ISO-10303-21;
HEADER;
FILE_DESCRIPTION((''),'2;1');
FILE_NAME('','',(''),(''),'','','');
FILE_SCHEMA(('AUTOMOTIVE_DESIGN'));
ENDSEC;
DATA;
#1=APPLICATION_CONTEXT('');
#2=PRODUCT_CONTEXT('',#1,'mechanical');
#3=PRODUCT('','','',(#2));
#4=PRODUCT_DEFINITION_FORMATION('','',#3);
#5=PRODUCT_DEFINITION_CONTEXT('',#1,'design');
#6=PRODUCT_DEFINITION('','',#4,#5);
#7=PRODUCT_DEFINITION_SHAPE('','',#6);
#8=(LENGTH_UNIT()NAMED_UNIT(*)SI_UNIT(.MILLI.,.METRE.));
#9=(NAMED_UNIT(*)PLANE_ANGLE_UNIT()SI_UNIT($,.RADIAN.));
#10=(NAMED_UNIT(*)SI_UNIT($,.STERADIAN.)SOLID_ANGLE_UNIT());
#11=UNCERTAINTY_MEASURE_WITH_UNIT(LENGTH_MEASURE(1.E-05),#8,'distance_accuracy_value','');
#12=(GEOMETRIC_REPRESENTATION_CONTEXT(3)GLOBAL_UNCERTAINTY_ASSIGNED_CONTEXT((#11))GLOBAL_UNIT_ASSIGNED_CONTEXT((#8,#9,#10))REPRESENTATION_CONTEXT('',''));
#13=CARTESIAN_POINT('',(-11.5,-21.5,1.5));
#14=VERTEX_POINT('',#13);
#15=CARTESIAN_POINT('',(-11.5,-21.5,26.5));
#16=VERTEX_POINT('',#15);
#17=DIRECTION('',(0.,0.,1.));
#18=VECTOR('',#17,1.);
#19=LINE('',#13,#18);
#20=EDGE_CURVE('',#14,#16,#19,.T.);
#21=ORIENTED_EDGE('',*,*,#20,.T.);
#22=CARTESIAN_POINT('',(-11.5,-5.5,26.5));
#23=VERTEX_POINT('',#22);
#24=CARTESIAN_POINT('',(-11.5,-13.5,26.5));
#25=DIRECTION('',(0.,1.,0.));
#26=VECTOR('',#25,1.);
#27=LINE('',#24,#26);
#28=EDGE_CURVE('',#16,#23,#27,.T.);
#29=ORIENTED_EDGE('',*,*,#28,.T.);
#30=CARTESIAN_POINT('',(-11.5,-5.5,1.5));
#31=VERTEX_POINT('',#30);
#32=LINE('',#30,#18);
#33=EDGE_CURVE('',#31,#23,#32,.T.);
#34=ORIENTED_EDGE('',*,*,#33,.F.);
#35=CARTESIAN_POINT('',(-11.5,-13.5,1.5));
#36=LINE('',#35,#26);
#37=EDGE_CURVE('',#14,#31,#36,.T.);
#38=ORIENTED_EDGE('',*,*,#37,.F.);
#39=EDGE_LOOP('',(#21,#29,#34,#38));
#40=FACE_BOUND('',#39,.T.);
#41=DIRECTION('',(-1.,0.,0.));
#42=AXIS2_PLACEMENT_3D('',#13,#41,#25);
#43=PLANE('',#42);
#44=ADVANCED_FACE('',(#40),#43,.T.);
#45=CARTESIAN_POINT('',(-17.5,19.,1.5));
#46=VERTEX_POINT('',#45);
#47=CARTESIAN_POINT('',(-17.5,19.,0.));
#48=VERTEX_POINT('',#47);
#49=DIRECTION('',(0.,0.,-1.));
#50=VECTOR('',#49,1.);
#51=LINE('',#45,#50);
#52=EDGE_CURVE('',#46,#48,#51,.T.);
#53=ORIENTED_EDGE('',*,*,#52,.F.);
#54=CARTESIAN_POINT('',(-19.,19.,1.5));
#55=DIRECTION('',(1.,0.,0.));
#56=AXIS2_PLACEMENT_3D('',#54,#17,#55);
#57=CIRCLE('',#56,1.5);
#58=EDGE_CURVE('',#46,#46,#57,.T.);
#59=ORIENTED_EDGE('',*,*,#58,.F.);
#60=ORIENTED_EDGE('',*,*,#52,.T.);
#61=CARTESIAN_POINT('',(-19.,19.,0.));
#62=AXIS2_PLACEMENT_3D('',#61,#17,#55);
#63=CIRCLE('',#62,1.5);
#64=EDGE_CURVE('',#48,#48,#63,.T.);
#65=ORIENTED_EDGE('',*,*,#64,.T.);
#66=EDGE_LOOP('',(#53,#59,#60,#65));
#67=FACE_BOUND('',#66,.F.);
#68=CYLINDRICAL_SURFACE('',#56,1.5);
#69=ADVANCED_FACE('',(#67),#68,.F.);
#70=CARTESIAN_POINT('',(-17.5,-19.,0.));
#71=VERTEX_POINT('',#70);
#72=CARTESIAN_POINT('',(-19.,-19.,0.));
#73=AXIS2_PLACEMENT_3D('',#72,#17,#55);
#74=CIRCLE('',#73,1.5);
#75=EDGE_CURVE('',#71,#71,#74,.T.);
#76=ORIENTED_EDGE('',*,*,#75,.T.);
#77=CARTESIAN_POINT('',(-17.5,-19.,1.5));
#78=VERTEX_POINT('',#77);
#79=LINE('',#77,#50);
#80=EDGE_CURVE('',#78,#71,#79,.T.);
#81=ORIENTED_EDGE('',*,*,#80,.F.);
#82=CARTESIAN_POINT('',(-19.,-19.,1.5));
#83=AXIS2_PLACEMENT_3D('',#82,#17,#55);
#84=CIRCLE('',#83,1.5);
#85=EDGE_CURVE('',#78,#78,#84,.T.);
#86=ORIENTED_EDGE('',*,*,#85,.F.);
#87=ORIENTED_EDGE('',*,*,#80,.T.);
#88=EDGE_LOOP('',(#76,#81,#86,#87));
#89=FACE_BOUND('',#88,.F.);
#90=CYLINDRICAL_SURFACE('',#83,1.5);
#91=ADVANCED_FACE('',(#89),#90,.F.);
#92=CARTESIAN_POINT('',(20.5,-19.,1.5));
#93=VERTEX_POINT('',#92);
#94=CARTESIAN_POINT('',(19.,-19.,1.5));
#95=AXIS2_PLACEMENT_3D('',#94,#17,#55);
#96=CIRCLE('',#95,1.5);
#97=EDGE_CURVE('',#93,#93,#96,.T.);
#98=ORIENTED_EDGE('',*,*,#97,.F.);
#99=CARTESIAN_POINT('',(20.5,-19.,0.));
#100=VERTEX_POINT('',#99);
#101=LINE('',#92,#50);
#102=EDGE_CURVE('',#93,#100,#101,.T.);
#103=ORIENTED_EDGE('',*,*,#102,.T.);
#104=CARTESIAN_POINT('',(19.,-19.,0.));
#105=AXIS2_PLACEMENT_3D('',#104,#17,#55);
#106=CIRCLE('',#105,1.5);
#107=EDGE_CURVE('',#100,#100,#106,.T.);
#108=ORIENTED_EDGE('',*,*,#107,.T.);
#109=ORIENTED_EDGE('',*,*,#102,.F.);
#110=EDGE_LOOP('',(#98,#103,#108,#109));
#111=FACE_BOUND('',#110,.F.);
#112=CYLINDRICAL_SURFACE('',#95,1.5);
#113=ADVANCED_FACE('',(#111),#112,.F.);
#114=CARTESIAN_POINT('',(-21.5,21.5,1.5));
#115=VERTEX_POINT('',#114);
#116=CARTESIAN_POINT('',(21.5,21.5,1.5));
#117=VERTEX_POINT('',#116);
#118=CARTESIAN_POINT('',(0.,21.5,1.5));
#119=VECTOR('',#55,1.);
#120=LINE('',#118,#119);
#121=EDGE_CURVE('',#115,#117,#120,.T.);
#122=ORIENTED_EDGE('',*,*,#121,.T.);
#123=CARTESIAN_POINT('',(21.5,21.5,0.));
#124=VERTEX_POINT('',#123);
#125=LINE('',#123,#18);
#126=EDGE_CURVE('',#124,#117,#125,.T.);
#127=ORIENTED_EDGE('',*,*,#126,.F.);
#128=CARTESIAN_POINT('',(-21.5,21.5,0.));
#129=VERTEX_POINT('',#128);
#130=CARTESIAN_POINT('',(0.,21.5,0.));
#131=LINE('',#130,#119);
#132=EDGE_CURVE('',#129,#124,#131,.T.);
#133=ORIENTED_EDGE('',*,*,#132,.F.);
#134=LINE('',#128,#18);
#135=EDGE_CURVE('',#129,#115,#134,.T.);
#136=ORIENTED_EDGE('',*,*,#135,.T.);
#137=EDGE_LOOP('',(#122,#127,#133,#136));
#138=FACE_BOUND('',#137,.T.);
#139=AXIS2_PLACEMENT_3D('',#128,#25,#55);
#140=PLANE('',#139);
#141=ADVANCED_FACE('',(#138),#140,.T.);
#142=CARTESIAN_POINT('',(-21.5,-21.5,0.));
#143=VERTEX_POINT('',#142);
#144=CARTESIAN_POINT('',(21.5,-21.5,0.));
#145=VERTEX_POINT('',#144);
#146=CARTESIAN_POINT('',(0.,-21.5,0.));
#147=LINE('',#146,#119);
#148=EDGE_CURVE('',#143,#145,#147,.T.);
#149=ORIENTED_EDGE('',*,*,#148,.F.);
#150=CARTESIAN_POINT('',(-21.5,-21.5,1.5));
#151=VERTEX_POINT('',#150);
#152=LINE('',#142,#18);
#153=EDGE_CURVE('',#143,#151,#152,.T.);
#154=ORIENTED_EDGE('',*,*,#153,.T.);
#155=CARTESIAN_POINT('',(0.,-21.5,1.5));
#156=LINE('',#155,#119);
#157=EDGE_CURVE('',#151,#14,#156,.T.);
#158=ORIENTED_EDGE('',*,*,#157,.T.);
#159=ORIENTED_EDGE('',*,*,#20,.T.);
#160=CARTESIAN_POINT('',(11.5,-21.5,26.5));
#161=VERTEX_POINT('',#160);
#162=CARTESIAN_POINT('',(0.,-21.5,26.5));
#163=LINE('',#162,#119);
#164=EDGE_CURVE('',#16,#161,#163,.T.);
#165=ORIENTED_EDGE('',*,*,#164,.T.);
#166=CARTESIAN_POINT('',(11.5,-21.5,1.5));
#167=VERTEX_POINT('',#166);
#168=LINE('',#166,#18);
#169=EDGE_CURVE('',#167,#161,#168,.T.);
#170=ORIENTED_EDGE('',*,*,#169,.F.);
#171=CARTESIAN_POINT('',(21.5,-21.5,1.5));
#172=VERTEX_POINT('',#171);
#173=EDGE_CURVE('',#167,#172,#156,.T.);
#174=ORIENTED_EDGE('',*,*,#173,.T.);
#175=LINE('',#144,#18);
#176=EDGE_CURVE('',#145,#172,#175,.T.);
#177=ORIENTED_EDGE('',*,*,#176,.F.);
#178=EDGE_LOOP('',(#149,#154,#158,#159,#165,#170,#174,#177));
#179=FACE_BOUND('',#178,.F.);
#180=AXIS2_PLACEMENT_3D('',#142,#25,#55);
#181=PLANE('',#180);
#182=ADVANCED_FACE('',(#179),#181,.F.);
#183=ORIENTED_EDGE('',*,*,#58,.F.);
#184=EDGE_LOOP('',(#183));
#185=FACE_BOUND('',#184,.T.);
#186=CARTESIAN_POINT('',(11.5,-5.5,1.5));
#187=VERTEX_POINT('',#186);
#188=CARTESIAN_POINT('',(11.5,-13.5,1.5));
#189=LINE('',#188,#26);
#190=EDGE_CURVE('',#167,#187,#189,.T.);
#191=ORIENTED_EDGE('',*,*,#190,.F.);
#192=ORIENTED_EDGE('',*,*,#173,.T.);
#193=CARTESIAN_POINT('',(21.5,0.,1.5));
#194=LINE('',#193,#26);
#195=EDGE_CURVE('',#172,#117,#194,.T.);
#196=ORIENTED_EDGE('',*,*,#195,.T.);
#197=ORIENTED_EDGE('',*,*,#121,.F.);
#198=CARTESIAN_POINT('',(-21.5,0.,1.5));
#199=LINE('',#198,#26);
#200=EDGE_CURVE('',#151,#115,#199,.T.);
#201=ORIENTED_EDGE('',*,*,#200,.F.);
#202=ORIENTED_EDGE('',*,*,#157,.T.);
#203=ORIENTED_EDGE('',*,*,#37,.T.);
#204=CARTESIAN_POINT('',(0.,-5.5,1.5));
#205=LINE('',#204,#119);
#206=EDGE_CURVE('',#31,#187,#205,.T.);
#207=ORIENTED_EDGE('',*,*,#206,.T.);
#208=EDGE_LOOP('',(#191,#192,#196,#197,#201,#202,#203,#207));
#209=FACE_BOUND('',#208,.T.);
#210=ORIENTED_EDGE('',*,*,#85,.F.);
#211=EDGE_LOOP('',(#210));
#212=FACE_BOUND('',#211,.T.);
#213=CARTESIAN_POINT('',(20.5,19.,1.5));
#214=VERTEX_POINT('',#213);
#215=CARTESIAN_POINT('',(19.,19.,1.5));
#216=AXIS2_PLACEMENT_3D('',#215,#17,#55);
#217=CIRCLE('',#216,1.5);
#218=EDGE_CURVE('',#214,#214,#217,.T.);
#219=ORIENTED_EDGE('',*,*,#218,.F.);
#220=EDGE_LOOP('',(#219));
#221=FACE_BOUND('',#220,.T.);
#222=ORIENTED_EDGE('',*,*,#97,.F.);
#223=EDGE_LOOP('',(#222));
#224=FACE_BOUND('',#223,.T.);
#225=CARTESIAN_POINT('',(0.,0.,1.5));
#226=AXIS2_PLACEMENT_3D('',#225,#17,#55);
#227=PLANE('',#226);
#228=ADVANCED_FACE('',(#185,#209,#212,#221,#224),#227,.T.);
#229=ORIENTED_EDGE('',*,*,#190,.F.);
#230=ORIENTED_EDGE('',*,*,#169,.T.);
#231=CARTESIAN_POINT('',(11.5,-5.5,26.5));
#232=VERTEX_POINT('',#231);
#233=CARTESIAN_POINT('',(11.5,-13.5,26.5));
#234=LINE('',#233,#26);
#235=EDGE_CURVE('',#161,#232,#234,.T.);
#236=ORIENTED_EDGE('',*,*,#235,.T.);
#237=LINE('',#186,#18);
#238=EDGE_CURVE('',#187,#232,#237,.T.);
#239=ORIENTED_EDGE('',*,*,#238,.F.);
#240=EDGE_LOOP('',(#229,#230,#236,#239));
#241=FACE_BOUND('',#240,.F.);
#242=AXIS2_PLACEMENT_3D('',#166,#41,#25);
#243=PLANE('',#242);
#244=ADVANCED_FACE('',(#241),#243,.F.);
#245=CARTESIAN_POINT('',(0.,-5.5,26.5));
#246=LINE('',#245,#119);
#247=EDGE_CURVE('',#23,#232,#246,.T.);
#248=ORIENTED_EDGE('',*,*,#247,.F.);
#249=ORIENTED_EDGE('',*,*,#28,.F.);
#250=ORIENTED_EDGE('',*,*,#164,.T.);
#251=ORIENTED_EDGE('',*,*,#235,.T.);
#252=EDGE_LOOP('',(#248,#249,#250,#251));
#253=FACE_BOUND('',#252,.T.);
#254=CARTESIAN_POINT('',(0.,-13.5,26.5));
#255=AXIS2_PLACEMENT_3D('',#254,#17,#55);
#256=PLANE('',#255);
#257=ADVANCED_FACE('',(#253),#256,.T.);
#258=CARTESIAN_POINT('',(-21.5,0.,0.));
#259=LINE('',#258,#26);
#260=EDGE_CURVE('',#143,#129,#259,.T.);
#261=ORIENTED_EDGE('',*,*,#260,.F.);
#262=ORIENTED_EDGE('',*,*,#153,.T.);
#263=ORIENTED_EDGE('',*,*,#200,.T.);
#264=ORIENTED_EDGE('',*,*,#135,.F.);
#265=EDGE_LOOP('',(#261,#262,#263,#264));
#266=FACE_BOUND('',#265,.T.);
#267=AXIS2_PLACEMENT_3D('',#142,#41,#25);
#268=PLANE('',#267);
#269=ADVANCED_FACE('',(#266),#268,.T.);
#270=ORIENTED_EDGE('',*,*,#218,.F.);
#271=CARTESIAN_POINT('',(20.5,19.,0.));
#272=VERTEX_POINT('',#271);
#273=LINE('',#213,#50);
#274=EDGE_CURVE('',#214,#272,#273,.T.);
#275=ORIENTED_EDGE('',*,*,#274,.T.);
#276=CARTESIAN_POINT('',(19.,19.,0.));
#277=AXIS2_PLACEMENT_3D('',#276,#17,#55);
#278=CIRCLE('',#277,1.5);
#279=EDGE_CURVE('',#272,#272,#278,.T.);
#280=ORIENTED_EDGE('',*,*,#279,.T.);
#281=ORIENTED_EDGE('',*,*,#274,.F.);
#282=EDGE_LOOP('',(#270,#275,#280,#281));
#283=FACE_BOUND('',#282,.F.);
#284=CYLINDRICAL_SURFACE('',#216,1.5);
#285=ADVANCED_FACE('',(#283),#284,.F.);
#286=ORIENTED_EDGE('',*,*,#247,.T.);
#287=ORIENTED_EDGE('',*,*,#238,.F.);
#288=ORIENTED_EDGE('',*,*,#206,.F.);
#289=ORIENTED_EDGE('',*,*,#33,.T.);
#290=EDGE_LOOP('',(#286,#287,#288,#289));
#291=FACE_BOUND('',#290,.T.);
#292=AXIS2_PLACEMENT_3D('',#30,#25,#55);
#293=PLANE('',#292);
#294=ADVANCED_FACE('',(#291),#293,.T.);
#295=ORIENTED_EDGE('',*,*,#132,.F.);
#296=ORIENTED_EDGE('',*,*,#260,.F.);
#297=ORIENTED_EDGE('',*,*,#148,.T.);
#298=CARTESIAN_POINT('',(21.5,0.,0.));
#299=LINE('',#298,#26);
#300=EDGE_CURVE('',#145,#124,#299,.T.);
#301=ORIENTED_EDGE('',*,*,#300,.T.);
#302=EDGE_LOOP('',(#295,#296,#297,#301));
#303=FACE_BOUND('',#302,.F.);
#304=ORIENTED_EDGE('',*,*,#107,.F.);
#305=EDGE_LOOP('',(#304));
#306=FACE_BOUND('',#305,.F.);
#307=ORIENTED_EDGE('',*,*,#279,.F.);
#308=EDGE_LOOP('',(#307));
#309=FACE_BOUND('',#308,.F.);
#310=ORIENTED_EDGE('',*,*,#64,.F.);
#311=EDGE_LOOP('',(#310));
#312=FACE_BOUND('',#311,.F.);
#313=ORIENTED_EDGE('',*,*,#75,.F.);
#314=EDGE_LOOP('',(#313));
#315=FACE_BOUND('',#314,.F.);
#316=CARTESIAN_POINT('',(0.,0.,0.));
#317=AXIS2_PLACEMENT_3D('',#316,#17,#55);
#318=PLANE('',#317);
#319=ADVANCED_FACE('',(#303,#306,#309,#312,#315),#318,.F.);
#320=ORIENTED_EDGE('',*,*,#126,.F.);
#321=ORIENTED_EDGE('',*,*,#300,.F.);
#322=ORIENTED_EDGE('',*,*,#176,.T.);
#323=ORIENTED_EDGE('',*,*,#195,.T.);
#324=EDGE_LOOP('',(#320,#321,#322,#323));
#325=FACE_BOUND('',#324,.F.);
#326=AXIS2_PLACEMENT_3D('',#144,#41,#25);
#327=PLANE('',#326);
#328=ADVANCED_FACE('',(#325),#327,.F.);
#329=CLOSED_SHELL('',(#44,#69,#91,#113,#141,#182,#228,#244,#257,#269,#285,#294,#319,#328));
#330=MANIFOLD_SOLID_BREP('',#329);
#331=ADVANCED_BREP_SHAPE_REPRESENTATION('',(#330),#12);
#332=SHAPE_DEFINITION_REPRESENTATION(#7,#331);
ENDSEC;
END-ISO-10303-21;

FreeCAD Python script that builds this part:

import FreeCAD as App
import Part
import Sketcher

doc = App.newDocument("Part")
params = doc.addObject("Spreadsheet::Sheet", "Params")
for row, (alias, value) in enumerate([
    ("sketch1_width", "43 mm"),
    ("pad1_length", "1.5 mm"),
    ("sketch2_width", "23 mm"),
    ("sketch2_height", "16 mm"),
    ("pad2_length", "25 mm"),
    ("sketch3_diameter", "3 mm"),
], start=1):
    params.set(f"A{row}", alias)
    params.set(f"B{row}", "=" + value)
    params.setAlias(f"B{row}", alias)

body = doc.addObject("PartDesign::Body", "Body")

sketch1 = body.newObject("Sketcher::SketchObject", "Sketch")
sketch1.AttachmentSupport = (doc.getObject("XY_Plane"), [""])
sketch1.MapMode = "FlatFace"
sketch1.addGeometry([
    Part.LineSegment(App.Vector(-22, 22, 0), App.Vector(-22, -22, 0)),
    Part.LineSegment(App.Vector(-22, -22, 0), App.Vector(22, -22, 0)),
    Part.LineSegment(App.Vector(22, -22, 0), App.Vector(22, 22, 0)),
    Part.LineSegment(App.Vector(22, 22, 0), App.Vector(-22, 22, 0)),
], False)
sketch1.addConstraint([
    Sketcher.Constraint("Coincident", 0, 2, 1, 1),
    Sketcher.Constraint("Coincident", 1, 2, 2, 1),
    Sketcher.Constraint("Coincident", 2, 2, 3, 1),
    Sketcher.Constraint("Coincident", 3, 2, 0, 1),
    Sketcher.Constraint("Vertical", 0),
    Sketcher.Constraint("Horizontal", 1),
    Sketcher.Constraint("Vertical", 2),
    Sketcher.Constraint("Horizontal", 3),
    Sketcher.Constraint("Symmetric", 0, 2, 2, 2, -1, 1),
    Sketcher.Constraint("Equal", 3, 0),
    Sketcher.Constraint("DistanceX", 1, 1, 1, 2, 43.0),
])
sketch1.setExpression("Constraints[10]", "Params.sketch1_width")
pad1 = body.newObject("PartDesign::Pad", "Pad")
pad1.Profile = sketch1
pad1.setExpression("Length", "Params.pad1_length")

sketch2 = body.newObject("Sketcher::SketchObject", "Sketch001")
sketch2.AttachmentSupport = (doc.getObject("XY_Plane"), [""])
sketch2.MapMode = "FlatFace"
sketch2.AttachmentOffset = App.Placement(App.Vector(0, 0, 1.5), App.Rotation())
sketch2.addGeometry([
    Part.LineSegment(App.Vector(-12, -6, 0), App.Vector(-12, -22, 0)),
    Part.LineSegment(App.Vector(-12, -22, 0), App.Vector(12, -22, 0)),
    Part.LineSegment(App.Vector(12, -22, 0), App.Vector(12, -6, 0)),
    Part.LineSegment(App.Vector(12, -6, 0), App.Vector(-12, -6, 0)),
], False)
sketch2.addConstraint([
    Sketcher.Constraint("Coincident", 0, 2, 1, 1),
    Sketcher.Constraint("Coincident", 1, 2, 2, 1),
    Sketcher.Constraint("Coincident", 2, 2, 3, 1),
    Sketcher.Constraint("Coincident", 3, 2, 0, 1),
    Sketcher.Constraint("Vertical", 0),
    Sketcher.Constraint("Horizontal", 1),
    Sketcher.Constraint("Vertical", 2),
    Sketcher.Constraint("Horizontal", 3),
    Sketcher.Constraint("DistanceX", 1, 1, 1, 2, 23.0),
    Sketcher.Constraint("DistanceY", 0, 2, 0, 1, 16.0),
    Sketcher.Constraint("DistanceX", 0, 2, -1, 1, 11.5),
    Sketcher.Constraint("DistanceY", 0, 2, -1, 1, 21.5),
])
sketch2.setExpression("Constraints[8]", "Params.sketch2_width")
sketch2.setExpression("Constraints[9]", "Params.sketch2_height")
pad2 = body.newObject("PartDesign::Pad", "Pad001")
pad2.Profile = sketch2
pad2.setExpression("Length", "Params.pad2_length")

sketch3 = body.newObject("Sketcher::SketchObject", "Sketch002")
sketch3.AttachmentSupport = (doc.getObject("XY_Plane"), [""])
sketch3.MapMode = "FlatFace"
sketch3.AttachmentOffset = App.Placement(App.Vector(0, 0, 1.5), App.Rotation())
sketch3.addGeometry([
    Part.Circle(App.Vector(-19, -19, 0), App.Vector(0, 0, 1), 1.5),
    Part.Circle(App.Vector(19, -19, 0), App.Vector(0, 0, 1), 1.5),
    Part.Circle(App.Vector(-19, 19, 0), App.Vector(0, 0, 1), 1.5),
    Part.Circle(App.Vector(19, 19, 0), App.Vector(0, 0, 1), 1.5),
], False)
sketch3.addConstraint([
    Sketcher.Constraint("Equal", 0, 1),
    Sketcher.Constraint("Equal", 1, 2),
    Sketcher.Constraint("Equal", 2, 3),
    Sketcher.Constraint("Symmetric", 1, 3, 2, 3, -1, 1),
    Sketcher.Constraint("Symmetric", 0, 3, 3, 3, -1, 1),
    Sketcher.Constraint("Symmetric", 0, 3, 1, 3, -2),
    Sketcher.Constraint("Diameter", 0, 3.0),
    Sketcher.Constraint("DistanceX", 0, 3, -1, 1, 19.0),
    Sketcher.Constraint("DistanceY", 0, 3, -1, 1, 19.0),
])
sketch3.setExpression("Constraints[6]", "Params.sketch3_diameter")
pocket1 = body.newObject("PartDesign::Pocket", "Pocket")
pocket1.Profile = sketch3
pocket1.Type = "ThroughAll"

doc.recompute()
